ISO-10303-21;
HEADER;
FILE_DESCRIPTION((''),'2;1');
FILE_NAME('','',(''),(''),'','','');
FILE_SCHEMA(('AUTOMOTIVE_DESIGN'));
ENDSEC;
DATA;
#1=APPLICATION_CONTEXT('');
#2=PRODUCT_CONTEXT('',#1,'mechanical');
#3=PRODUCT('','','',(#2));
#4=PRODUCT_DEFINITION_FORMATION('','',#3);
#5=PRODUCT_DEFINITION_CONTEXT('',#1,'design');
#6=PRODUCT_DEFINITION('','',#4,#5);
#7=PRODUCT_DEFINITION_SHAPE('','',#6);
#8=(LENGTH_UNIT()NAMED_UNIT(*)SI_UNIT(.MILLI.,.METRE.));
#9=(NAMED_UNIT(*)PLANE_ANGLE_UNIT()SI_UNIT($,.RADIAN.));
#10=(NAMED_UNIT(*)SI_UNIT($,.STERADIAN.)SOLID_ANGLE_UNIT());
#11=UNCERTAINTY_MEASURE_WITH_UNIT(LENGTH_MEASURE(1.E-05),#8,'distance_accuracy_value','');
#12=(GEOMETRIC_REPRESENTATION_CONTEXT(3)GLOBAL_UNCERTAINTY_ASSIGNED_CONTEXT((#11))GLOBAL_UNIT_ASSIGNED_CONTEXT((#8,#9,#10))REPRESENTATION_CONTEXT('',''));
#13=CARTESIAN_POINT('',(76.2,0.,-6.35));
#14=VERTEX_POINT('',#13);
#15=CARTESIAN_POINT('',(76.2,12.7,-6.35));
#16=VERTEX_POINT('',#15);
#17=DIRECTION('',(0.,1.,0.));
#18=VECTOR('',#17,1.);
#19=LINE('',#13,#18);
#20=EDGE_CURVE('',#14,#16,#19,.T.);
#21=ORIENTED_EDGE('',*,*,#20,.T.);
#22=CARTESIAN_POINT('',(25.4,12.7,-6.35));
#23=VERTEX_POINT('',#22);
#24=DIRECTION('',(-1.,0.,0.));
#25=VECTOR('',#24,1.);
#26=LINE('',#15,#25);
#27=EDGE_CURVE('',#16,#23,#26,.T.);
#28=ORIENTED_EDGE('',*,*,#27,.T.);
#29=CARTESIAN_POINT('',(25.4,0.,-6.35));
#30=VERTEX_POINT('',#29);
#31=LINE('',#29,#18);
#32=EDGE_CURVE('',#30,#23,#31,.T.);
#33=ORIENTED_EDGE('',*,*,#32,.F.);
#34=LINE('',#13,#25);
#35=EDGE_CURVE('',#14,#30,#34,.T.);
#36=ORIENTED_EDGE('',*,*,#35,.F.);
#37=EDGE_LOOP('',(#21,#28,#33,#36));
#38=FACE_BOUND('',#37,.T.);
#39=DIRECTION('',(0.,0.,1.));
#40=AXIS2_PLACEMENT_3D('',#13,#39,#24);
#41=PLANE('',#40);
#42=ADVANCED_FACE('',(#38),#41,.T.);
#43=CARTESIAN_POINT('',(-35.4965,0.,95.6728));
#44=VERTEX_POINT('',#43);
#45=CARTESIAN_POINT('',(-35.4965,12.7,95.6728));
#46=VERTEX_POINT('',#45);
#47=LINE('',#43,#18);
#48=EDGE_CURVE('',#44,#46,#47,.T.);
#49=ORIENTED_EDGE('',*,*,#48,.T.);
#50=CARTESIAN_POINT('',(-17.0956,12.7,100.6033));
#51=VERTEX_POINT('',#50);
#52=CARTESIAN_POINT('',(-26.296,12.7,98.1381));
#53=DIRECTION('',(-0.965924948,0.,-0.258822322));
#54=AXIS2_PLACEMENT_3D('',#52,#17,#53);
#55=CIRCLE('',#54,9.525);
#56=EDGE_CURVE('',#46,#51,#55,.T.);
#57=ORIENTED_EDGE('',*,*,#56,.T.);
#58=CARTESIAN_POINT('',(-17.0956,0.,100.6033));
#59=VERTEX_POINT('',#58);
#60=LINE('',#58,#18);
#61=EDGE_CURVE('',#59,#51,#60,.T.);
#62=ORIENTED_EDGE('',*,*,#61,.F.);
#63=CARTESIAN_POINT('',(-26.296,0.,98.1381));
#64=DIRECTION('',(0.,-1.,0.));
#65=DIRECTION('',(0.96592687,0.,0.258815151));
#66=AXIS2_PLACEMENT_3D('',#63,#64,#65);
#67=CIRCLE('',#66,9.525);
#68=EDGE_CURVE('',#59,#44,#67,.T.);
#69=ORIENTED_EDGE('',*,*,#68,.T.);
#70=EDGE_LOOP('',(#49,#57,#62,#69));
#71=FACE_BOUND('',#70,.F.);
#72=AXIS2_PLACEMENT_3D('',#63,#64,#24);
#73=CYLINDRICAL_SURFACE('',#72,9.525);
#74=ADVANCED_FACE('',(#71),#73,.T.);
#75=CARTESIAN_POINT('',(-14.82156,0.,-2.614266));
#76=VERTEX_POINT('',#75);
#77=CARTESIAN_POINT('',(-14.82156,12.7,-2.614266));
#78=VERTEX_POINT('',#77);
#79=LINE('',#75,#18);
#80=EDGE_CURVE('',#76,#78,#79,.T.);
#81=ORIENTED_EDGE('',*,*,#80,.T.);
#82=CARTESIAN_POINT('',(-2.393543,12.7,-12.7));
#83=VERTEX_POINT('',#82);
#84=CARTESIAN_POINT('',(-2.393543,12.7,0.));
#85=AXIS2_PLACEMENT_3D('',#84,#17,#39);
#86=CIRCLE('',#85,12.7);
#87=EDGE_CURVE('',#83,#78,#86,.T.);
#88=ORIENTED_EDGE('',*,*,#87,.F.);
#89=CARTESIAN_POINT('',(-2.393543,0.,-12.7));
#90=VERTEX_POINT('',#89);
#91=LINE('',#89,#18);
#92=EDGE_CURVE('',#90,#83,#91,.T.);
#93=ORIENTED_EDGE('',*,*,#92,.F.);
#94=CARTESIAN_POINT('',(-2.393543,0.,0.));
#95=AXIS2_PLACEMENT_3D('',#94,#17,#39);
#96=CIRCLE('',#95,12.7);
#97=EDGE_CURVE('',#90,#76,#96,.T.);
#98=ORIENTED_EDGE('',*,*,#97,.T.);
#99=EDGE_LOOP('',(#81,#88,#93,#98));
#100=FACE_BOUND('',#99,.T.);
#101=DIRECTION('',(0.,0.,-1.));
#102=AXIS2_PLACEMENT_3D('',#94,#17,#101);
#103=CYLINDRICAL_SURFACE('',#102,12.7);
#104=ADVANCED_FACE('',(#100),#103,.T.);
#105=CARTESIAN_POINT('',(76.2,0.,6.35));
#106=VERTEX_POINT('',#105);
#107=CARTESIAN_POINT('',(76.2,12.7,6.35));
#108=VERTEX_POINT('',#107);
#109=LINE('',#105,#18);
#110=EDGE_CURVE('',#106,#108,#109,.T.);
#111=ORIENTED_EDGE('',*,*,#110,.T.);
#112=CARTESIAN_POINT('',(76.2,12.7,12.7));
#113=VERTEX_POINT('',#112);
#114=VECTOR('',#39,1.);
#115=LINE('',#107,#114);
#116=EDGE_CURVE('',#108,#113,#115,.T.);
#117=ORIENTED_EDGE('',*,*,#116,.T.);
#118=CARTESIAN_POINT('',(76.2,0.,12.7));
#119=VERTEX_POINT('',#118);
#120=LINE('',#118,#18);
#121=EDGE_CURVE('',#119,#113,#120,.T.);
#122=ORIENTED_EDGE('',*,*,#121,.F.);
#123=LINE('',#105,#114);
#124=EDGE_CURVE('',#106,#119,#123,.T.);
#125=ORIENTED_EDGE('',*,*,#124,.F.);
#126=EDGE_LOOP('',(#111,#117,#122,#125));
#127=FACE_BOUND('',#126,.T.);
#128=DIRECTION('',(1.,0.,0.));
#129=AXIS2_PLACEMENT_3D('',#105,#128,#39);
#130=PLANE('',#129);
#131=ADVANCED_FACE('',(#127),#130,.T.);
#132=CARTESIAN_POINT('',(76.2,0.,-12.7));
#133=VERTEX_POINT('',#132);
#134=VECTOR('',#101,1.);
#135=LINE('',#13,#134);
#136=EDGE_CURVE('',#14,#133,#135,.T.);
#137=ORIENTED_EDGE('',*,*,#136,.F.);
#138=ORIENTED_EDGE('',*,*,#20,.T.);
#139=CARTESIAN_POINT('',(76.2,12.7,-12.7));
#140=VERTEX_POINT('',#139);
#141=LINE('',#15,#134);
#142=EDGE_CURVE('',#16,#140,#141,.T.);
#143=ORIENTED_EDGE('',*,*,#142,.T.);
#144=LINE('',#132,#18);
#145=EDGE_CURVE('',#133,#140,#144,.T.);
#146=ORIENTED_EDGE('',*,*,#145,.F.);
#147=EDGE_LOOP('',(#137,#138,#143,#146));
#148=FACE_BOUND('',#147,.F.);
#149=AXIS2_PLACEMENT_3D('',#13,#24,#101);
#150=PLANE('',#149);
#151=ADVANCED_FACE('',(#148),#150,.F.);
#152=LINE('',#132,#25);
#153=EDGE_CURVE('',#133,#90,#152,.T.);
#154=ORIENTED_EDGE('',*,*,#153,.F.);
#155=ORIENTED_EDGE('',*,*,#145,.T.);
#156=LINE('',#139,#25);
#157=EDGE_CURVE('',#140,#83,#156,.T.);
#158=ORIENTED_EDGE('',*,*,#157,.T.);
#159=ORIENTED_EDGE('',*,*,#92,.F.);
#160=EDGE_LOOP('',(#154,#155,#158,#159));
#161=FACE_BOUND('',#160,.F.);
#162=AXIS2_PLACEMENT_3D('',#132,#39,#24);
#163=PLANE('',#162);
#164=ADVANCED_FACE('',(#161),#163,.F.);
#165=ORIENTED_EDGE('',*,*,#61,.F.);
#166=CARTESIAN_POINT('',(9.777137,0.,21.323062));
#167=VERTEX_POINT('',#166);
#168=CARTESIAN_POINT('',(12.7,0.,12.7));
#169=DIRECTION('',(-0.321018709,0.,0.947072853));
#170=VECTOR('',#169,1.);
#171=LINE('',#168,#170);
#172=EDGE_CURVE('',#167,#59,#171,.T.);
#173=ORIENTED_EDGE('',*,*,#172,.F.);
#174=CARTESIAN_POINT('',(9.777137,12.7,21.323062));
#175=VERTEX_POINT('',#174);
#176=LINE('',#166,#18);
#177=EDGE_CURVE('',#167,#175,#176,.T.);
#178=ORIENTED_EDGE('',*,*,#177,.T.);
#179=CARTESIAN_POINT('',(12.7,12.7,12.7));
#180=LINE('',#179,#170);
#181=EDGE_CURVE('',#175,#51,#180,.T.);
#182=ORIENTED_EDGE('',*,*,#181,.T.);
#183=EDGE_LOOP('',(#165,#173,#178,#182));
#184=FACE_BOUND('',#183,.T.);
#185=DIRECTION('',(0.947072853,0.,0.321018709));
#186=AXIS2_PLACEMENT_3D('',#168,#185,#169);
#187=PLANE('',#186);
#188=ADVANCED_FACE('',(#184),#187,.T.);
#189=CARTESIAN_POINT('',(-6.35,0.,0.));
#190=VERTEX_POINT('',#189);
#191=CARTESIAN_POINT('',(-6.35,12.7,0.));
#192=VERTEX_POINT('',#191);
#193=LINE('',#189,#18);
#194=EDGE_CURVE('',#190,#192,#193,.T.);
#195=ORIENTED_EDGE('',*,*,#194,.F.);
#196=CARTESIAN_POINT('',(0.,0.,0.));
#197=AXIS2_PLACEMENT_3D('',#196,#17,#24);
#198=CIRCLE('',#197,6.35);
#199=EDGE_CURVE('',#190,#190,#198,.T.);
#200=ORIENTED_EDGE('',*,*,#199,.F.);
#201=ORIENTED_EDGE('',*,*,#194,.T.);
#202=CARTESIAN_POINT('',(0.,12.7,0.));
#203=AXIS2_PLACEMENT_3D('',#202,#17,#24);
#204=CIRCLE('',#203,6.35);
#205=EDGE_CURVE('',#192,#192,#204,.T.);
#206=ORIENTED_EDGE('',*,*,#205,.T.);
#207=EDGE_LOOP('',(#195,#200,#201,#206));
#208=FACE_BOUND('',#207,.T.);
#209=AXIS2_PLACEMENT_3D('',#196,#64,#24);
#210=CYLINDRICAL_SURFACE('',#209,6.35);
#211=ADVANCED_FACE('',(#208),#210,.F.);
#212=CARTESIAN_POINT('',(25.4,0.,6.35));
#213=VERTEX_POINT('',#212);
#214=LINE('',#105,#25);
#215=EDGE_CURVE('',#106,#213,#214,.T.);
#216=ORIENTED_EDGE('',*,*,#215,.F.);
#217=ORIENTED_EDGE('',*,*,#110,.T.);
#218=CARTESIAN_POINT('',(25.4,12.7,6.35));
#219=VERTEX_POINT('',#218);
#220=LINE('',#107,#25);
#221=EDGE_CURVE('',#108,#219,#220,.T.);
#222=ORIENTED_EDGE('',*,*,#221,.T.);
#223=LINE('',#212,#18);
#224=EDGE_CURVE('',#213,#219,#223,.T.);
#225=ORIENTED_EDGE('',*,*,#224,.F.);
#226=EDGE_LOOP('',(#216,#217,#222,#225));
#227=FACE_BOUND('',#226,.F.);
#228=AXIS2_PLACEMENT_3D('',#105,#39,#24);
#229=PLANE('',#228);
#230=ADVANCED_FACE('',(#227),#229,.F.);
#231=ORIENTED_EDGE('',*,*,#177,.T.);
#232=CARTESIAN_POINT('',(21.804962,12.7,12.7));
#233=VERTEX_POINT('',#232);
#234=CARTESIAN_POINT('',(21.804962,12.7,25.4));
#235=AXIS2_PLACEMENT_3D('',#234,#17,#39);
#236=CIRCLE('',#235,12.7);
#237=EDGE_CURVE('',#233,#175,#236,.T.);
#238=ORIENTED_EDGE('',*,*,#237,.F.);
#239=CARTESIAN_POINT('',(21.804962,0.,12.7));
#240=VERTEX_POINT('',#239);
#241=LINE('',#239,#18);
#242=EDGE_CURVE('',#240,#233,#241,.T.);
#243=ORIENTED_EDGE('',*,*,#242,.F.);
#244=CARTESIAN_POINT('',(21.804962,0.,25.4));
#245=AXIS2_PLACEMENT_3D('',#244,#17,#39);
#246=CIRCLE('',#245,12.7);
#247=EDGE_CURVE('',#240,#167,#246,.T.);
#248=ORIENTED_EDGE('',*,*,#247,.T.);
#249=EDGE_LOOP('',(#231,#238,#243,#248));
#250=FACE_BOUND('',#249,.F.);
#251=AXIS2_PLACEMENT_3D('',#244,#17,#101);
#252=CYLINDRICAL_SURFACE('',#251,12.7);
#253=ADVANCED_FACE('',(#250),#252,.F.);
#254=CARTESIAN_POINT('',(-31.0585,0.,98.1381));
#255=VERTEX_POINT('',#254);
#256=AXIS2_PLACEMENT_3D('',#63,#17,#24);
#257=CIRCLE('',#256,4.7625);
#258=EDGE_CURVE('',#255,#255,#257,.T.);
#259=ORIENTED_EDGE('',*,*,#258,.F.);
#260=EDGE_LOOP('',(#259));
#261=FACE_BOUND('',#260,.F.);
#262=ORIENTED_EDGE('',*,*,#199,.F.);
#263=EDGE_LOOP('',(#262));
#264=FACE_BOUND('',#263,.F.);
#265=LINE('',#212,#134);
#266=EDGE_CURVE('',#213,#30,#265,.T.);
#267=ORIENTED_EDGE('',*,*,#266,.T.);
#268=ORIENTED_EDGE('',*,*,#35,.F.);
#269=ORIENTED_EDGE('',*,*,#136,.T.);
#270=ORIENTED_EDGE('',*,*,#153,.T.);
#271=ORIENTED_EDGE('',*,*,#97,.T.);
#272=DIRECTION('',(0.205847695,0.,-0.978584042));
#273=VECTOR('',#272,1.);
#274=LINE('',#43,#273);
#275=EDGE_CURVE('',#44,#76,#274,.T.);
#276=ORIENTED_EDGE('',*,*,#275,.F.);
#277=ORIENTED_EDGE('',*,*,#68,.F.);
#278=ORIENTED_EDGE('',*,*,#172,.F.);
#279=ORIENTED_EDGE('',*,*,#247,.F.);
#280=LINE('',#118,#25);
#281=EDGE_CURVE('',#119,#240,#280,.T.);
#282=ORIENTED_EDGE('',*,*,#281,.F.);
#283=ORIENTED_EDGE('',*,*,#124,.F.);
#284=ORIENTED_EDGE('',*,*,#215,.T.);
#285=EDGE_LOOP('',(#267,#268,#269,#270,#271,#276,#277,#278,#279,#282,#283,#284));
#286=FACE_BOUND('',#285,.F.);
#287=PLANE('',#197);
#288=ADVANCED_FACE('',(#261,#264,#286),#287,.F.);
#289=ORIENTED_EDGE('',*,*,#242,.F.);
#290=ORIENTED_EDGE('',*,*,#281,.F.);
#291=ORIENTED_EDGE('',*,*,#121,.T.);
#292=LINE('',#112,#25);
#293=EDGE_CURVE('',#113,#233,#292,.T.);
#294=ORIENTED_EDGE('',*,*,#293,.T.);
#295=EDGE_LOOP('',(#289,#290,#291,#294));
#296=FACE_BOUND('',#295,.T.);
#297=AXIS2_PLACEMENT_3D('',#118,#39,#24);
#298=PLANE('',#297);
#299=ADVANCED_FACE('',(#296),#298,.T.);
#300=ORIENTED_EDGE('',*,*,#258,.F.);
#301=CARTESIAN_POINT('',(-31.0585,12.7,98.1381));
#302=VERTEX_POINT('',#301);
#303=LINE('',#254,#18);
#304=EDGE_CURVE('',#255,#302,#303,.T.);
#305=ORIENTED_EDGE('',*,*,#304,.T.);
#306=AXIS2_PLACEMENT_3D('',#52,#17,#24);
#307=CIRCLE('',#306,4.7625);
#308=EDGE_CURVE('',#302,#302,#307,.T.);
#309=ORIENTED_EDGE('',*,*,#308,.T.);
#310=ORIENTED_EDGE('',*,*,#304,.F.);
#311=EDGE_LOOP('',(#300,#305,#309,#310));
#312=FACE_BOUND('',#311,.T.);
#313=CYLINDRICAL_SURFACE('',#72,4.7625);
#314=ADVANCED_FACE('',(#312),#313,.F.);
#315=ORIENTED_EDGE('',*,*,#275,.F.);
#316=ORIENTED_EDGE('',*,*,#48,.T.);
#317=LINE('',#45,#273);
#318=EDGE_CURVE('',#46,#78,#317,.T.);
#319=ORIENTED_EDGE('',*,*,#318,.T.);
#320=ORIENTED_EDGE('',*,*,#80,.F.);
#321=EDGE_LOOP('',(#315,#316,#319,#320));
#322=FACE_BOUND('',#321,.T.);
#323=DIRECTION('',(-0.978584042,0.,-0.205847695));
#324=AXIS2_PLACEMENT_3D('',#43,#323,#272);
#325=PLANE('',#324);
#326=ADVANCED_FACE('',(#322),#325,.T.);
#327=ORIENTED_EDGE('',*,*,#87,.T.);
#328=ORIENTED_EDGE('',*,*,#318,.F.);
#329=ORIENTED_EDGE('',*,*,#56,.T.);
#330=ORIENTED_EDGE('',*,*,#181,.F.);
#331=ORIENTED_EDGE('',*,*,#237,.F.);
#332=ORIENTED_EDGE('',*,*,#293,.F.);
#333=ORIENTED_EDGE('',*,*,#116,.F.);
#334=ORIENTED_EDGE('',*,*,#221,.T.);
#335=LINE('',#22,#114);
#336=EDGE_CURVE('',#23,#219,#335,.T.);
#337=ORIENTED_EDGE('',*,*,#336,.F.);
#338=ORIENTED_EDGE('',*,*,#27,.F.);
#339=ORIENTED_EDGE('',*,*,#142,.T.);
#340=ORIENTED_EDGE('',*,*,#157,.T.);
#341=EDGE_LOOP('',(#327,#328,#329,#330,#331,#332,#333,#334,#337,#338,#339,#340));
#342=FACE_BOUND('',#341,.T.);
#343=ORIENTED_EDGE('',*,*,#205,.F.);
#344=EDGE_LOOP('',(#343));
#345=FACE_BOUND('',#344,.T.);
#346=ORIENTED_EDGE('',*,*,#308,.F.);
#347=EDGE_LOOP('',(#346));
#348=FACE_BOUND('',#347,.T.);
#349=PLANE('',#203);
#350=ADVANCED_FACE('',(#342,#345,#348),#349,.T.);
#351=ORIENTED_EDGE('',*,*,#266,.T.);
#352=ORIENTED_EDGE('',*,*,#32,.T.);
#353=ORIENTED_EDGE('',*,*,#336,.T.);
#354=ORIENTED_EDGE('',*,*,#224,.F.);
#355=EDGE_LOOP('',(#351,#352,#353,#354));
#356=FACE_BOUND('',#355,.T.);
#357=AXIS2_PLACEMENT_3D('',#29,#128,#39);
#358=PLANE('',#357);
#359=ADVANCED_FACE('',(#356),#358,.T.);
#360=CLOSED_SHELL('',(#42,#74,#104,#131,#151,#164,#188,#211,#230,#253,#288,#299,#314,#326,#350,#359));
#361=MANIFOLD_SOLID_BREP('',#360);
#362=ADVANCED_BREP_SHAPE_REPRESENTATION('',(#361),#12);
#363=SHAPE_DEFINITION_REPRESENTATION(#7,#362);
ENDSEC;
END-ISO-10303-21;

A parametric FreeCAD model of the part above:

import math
import FreeCAD as App
import Part
import Sketcher
Q = App.Units.Quantity


def edges_at(feature, points):
    """Names of the edges that pass closest to the given points."""
    edges = feature.Shape.Edges
    near = lambda p: min(range(len(edges)), key=lambda i: edges[i].distToShape(Part.Vertex(*p))[0])
    return sorted({f"Edge{near(p) + 1}" for p in points})

doc = App.newDocument("Part")
body = doc.addObject("PartDesign::Body", "Body")

# Sketch on XZ plane
sketch1 = body.newObject("Sketcher::SketchObject", "Sketch")
sketch1.AttachmentSupport = (doc.getObject("XZ_Plane"), [""])
sketch1.MapMode = "FlatFace"
sketch1.addGeometry(Part.LineSegment(App.Vector(25.4, -6.3, 0), App.Vector(76.2, -6.3, 0)), False)
sketch1.addGeometry(Part.LineSegment(App.Vector(76.2, -6.3, 0), App.Vector(76.2, -12.7, 0)), False)
sketch1.addGeometry(Part.LineSegment(App.Vector(76.2, -12.7, 0), App.Vector(-12.7, -12.7, 0)), False)
sketch1.addGeometry(Part.LineSegment(App.Vector(-12.7, -12.7, 0), App.Vector(-35.5, 95.7, 0)), False)
sketch1.addGeometry(Part.ArcOfCircle(Part.Circle(App.Vector(-26.3, 98.1, 0), App.Vector(0, 0, 1), 9.5), math.radians(15), math.radians(195)), False)
sketch1.addGeometry(Part.LineSegment(App.Vector(-17.1, 100.6, 0), App.Vector(12.7, 12.7, 0)), False)
sketch1.addGeometry(Part.LineSegment(App.Vector(12.7, 12.7, 0), App.Vector(76.2, 12.7, 0)), False)
sketch1.addGeometry(Part.LineSegment(App.Vector(76.2, 12.7, 0), App.Vector(76.2, 6.3, 0)), False)
sketch1.addGeometry(Part.LineSegment(App.Vector(76.2, 6.3, 0), App.Vector(25.4, 6.3, 0)), False)
sketch1.addGeometry(Part.LineSegment(App.Vector(25.4, 6.3, 0), App.Vector(25.4, -6.3, 0)), False)
sketch1.addGeometry(Part.Circle(App.Vector(0, 0, 0), App.Vector(0, 0, 1), 6.3), False)
sketch1.addGeometry(Part.Circle(App.Vector(-26.3, 98.1, 0), App.Vector(0, 0, 1), 4.8), False)
sketch1.addConstraint(Sketcher.Constraint("Coincident", 0, 2, 1, 1))
sketch1.addConstraint(Sketcher.Constraint("Coincident", 1, 2, 2, 1))
sketch1.addConstraint(Sketcher.Constraint("Coincident", 2, 2, 3, 1))
sketch1.addConstraint(Sketcher.Constraint("Coincident", 3, 2, 4, 2))
sketch1.addConstraint(Sketcher.Constraint("Coincident", 4, 1, 5, 1))
sketch1.addConstraint(Sketcher.Constraint("Coincident", 5, 2, 6, 1))
sketch1.addConstraint(Sketcher.Constraint("Coincident", 6, 2, 7, 1))
sketch1.addConstraint(Sketcher.Constraint("Coincident", 7, 2, 8, 1))
sketch1.addConstraint(Sketcher.Constraint("Coincident", 8, 2, 9, 1))
sketch1.addConstraint(Sketcher.Constraint("Coincident", 9, 2, 0, 1))
sketch1.addConstraint(Sketcher.Constraint("Horizontal", 0))
sketch1.addConstraint(Sketcher.Constraint("Vertical", 1))
sketch1.addConstraint(Sketcher.Constraint("Horizontal", 2))
sketch1.addConstraint(Sketcher.Constraint("Horizontal", 6))
sketch1.addConstraint(Sketcher.Constraint("Vertical", 7))
sketch1.addConstraint(Sketcher.Constraint("Horizontal", 8))
sketch1.addConstraint(Sketcher.Constraint("Vertical", 9))
sketch1.addConstraint(Sketcher.Constraint("Coincident", 10, 3, -1, 1))
sketch1.addConstraint(Sketcher.Constraint("Coincident", 11, 3, 4, 3))
sketch1.addConstraint(Sketcher.Constraint("Symmetric", 2, 2, 5, 2, -1, 1))
sketch1.addConstraint(Sketcher.Constraint("Symmetric", 0, 2, 7, 2, -1))
sketch1.addConstraint(Sketcher.Constraint("Diameter", 10, Q("0.5 in")))
sketch1.addConstraint(Sketcher.Constraint("DistanceX", 0, 1, 0, 2, Q("2 in")))
sketch1.addConstraint(Sketcher.Constraint("Diameter", 11, Q("0.375 in")))
sketch1.addConstraint(Sketcher.Constraint("DistanceX", 2, 2, 2, 1, Q("3.5 in")))
sketch1.addConstraint(Sketcher.Constraint("DistanceY", 9, 2, 9, 1, Q("0.5 in")))
sketch1.addConstraint(Sketcher.Constraint("DistanceX", -1, 1, 8, 2, Q("1 in")))
sketch1.addConstraint(Sketcher.Constraint("Radius", 4, Q("0.375 in")))
sketch1.addConstraint(Sketcher.Constraint("DistanceY", 2, 2, 5, 2, Q("1 in")))
sketch1.addConstraint(Sketcher.Constraint("Angle", 3, Q("101.8791 deg")))
sketch1.addConstraint(Sketcher.Constraint("DistanceY", -1, 1, 4, 3, Q("3.8637 in")))
sketch1.addConstraint(Sketcher.Constraint("DistanceX", 3, 2, -1, 1, Q("1.3975 in")))
sketch1.addConstraint(Sketcher.Constraint("Distance", 5, Q("92.8158 mm")))
pad1 = body.newObject("PartDesign::Pad", "Pad")
pad1.Profile = sketch1
pad1.Length = Q("0.5 in")
pad1.Reversed = True
doc.recompute()

fillet = body.newObject("PartDesign::Fillet", "Fillet")
fillet.Base = (pad1, edges_at(pad1, [(12.7, 6.35, 12.7), (-12.7, 6.35, -12.7)]))
fillet.Radius = Q("0.5 in")

doc.recompute()
